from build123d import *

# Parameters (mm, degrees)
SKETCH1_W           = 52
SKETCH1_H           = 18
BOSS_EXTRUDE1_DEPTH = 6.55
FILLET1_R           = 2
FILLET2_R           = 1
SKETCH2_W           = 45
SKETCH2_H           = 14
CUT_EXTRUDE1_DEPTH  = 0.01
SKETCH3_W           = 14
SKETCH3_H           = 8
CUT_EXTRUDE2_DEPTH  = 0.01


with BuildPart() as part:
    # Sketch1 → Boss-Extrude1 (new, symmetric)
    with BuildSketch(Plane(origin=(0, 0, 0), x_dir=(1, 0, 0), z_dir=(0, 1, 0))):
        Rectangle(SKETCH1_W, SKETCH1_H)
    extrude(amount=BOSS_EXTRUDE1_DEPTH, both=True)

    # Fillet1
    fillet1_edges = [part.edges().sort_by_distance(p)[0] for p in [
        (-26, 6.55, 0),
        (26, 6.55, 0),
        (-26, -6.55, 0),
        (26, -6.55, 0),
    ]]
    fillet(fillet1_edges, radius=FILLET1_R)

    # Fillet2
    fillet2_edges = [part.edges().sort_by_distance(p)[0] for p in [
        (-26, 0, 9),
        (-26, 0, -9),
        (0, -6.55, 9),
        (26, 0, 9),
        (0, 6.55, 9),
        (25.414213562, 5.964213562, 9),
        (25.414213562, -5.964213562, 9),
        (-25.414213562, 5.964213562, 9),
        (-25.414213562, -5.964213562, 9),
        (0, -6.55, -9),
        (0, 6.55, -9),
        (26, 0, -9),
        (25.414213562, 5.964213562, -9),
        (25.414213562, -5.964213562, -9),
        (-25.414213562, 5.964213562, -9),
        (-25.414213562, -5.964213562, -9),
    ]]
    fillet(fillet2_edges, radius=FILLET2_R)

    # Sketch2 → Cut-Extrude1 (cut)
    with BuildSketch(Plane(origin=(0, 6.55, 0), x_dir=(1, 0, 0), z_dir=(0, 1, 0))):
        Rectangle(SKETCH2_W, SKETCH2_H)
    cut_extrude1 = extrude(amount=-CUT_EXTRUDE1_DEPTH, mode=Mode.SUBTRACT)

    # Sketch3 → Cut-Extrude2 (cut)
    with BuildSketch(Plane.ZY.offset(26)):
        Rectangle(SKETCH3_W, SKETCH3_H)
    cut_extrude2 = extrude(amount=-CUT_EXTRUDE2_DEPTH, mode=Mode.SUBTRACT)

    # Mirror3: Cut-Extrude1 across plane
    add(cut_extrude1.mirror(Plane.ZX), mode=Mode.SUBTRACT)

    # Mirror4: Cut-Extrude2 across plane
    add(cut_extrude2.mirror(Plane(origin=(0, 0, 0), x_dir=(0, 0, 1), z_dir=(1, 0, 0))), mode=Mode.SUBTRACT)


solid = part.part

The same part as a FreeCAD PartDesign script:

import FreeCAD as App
import Part
import Sketcher

V = App.Vector


def edges_at(feature, points):
    """Names of the edges that pass closest to the given points."""
    edges = feature.Shape.Edges
    near = lambda p: min(range(len(edges)), key=lambda i: edges[i].distToShape(Part.Vertex(*p))[0])
    return sorted({f"Edge{near(p) + 1}" for p in points})


def add_polygon(sketch, points):
    """Adds a closed chain of lines whose ends are joined by coincident constraints."""
    first, n = sketch.GeometryCount, len(points)
    for a, b in zip(points, points[1:] + points[:1]):
        sketch.addGeometry(Part.LineSegment(App.Vector(*a, 0), App.Vector(*b, 0)), False)
    for i in range(n):
        sketch.addConstraint(Sketcher.Constraint("Coincident", first + i, 2, first + (i + 1) % n, 1))

doc = App.newDocument("Part")
body = doc.addObject("PartDesign::Body", "Body")

# Sketch on XZ plane
sketch1 = doc.addObject("Sketcher::SketchObject", "Sketch")
body.addObject(sketch1)
sketch1.AttachmentSupport = (doc.XZ_Plane, [""])
sketch1.MapMode = "FlatFace"
add_polygon(sketch1, [(-26, -9), (-26, 9), (26, 9), (26, -9)])  # lines 0-3
sketch1.addConstraint(Sketcher.Constraint("Vertical", 0))
sketch1.addConstraint(Sketcher.Constraint("Horizontal", 1))
sketch1.addConstraint(Sketcher.Constraint("Vertical", 2))
sketch1.addConstraint(Sketcher.Constraint("Horizontal", 3))
sketch1.addConstraint(Sketcher.Constraint("Symmetric", 0, 2, 2, 2, -1, 1))
sketch1.addConstraint(Sketcher.Constraint("DistanceX", 1, 1, 1, 2, 52.0))
sketch1.addConstraint(Sketcher.Constraint("DistanceY", 0, 1, 0, 2, 18.0))
pad1 = doc.addObject("PartDesign::Pad", "Pad")
body.addObject(pad1)
pad1.Profile = sketch1
pad1.Length = 13.1
pad1.Midplane = True
doc.recompute()

fillet = doc.addObject("PartDesign::Fillet", "Fillet")
body.addObject(fillet)
fillet.Base = (pad1, edges_at(pad1, [
    (-26, 6.55, 0),
    (26, 6.55, 0),
    (-26, -6.55, 0),
    (26, -6.55, 0),
]))
fillet.Radius = 2
doc.recompute()

fillet2 = doc.addObject("PartDesign::Fillet", "Fillet001")
body.addObject(fillet2)
fillet2.Base = (fillet, edges_at(fillet, [
    (-26, 0, 9),
    (-26, 0, -9),
    (0, -6.55, 9),
    (26, 0, 9),
    (0, 6.55, 9),
    (25.414, 5.964, 9),
    (25.414, -5.964, 9),
    (-25.414, 5.964, 9),
    (-25.414, -5.964, 9),
    (0, -6.55, -9),
    (0, 6.55, -9),
    (26, 0, -9),
    (25.414, 5.964, -9),
    (25.414, -5.964, -9),
    (-25.414, 5.964, -9),
    (-25.414, -5.964, -9),
]))
fillet2.Radius = 1

# Sketch on XZ plane
sketch2 = doc.addObject("Sketcher::SketchObject", "Sketch001")
body.addObject(sketch2)
sketch2.AttachmentSupport = (doc.XZ_Plane, [""])
sketch2.MapMode = "FlatFace"
sketch2.AttachmentOffset = App.Placement(V(0, 0, -6.55), App.Rotation())
add_polygon(sketch2, [(-22, -7), (-22, 7), (22, 7), (22, -7)])  # lines 0-3
sketch2.addConstraint(Sketcher.Constraint("Vertical", 0))
sketch2.addConstraint(Sketcher.Constraint("Horizontal", 1))
sketch2.addConstraint(Sketcher.Constraint("Vertical", 2))
sketch2.addConstraint(Sketcher.Constraint("Horizontal", 3))
sketch2.addConstraint(Sketcher.Constraint("Symmetric", 0, 2, 2, 2, -1, 1))
sketch2.addConstraint(Sketcher.Constraint("DistanceX", 1, 1, 1, 2, 45.0))
sketch2.addConstraint(Sketcher.Constraint("DistanceY", 0, 1, 0, 2, 14.0))
pocket1 = doc.addObject("PartDesign::Pocket", "Pocket")
body.addObject(pocket1)
pocket1.Profile = sketch2
pocket1.Length = 0.01
pocket1.Reversed = True

# Sketch on YZ plane
sketch3 = doc.addObject("Sketcher::SketchObject", "Sketch002")
body.addObject(sketch3)
sketch3.AttachmentSupport = (doc.YZ_Plane, [""])
sketch3.MapMode = "FlatFace"
sketch3.AttachmentOffset = App.Placement(V(0, 0, -26), App.Rotation())
add_polygon(sketch3, [(4, -7), (-4, -7), (-4, 7), (4, 7)])  # lines 0-3
sketch3.addConstraint(Sketcher.Constraint("Horizontal", 0))
sketch3.addConstraint(Sketcher.Constraint("Vertical", 1))
sketch3.addConstraint(Sketcher.Constraint("Horizontal", 2))
sketch3.addConstraint(Sketcher.Constraint("Vertical", 3))
sketch3.addConstraint(Sketcher.Constraint("Symmetric", 0, 2, 2, 2, -1, 1))
sketch3.addConstraint(Sketcher.Constraint("DistanceX", 0, 2, 0, 1, 8.0))
sketch3.addConstraint(Sketcher.Constraint("DistanceY", 1, 1, 1, 2, 14.0))
pocket2 = doc.addObject("PartDesign::Pocket", "Pocket001")
body.addObject(pocket2)
pocket2.Profile = sketch3
pocket2.Length = 0.01
pocket2.Reversed = True
doc.recompute()

mirrored = doc.addObject("PartDesign::Mirrored", "Mirrored")
body.addObject(mirrored)
mirrored.Originals = [pocket1]
mirrored.MirrorPlane = (doc.XZ_Plane, [""])
body.Tip = mirrored
doc.recompute()

mirrored2 = doc.addObject("PartDesign::Mirrored", "Mirrored001")
body.addObject(mirrored2)
mirrored2.Originals = [pocket2]
mirrored2.MirrorPlane = (doc.YZ_Plane, [""])
body.Tip = mirrored2

doc.recompute()
